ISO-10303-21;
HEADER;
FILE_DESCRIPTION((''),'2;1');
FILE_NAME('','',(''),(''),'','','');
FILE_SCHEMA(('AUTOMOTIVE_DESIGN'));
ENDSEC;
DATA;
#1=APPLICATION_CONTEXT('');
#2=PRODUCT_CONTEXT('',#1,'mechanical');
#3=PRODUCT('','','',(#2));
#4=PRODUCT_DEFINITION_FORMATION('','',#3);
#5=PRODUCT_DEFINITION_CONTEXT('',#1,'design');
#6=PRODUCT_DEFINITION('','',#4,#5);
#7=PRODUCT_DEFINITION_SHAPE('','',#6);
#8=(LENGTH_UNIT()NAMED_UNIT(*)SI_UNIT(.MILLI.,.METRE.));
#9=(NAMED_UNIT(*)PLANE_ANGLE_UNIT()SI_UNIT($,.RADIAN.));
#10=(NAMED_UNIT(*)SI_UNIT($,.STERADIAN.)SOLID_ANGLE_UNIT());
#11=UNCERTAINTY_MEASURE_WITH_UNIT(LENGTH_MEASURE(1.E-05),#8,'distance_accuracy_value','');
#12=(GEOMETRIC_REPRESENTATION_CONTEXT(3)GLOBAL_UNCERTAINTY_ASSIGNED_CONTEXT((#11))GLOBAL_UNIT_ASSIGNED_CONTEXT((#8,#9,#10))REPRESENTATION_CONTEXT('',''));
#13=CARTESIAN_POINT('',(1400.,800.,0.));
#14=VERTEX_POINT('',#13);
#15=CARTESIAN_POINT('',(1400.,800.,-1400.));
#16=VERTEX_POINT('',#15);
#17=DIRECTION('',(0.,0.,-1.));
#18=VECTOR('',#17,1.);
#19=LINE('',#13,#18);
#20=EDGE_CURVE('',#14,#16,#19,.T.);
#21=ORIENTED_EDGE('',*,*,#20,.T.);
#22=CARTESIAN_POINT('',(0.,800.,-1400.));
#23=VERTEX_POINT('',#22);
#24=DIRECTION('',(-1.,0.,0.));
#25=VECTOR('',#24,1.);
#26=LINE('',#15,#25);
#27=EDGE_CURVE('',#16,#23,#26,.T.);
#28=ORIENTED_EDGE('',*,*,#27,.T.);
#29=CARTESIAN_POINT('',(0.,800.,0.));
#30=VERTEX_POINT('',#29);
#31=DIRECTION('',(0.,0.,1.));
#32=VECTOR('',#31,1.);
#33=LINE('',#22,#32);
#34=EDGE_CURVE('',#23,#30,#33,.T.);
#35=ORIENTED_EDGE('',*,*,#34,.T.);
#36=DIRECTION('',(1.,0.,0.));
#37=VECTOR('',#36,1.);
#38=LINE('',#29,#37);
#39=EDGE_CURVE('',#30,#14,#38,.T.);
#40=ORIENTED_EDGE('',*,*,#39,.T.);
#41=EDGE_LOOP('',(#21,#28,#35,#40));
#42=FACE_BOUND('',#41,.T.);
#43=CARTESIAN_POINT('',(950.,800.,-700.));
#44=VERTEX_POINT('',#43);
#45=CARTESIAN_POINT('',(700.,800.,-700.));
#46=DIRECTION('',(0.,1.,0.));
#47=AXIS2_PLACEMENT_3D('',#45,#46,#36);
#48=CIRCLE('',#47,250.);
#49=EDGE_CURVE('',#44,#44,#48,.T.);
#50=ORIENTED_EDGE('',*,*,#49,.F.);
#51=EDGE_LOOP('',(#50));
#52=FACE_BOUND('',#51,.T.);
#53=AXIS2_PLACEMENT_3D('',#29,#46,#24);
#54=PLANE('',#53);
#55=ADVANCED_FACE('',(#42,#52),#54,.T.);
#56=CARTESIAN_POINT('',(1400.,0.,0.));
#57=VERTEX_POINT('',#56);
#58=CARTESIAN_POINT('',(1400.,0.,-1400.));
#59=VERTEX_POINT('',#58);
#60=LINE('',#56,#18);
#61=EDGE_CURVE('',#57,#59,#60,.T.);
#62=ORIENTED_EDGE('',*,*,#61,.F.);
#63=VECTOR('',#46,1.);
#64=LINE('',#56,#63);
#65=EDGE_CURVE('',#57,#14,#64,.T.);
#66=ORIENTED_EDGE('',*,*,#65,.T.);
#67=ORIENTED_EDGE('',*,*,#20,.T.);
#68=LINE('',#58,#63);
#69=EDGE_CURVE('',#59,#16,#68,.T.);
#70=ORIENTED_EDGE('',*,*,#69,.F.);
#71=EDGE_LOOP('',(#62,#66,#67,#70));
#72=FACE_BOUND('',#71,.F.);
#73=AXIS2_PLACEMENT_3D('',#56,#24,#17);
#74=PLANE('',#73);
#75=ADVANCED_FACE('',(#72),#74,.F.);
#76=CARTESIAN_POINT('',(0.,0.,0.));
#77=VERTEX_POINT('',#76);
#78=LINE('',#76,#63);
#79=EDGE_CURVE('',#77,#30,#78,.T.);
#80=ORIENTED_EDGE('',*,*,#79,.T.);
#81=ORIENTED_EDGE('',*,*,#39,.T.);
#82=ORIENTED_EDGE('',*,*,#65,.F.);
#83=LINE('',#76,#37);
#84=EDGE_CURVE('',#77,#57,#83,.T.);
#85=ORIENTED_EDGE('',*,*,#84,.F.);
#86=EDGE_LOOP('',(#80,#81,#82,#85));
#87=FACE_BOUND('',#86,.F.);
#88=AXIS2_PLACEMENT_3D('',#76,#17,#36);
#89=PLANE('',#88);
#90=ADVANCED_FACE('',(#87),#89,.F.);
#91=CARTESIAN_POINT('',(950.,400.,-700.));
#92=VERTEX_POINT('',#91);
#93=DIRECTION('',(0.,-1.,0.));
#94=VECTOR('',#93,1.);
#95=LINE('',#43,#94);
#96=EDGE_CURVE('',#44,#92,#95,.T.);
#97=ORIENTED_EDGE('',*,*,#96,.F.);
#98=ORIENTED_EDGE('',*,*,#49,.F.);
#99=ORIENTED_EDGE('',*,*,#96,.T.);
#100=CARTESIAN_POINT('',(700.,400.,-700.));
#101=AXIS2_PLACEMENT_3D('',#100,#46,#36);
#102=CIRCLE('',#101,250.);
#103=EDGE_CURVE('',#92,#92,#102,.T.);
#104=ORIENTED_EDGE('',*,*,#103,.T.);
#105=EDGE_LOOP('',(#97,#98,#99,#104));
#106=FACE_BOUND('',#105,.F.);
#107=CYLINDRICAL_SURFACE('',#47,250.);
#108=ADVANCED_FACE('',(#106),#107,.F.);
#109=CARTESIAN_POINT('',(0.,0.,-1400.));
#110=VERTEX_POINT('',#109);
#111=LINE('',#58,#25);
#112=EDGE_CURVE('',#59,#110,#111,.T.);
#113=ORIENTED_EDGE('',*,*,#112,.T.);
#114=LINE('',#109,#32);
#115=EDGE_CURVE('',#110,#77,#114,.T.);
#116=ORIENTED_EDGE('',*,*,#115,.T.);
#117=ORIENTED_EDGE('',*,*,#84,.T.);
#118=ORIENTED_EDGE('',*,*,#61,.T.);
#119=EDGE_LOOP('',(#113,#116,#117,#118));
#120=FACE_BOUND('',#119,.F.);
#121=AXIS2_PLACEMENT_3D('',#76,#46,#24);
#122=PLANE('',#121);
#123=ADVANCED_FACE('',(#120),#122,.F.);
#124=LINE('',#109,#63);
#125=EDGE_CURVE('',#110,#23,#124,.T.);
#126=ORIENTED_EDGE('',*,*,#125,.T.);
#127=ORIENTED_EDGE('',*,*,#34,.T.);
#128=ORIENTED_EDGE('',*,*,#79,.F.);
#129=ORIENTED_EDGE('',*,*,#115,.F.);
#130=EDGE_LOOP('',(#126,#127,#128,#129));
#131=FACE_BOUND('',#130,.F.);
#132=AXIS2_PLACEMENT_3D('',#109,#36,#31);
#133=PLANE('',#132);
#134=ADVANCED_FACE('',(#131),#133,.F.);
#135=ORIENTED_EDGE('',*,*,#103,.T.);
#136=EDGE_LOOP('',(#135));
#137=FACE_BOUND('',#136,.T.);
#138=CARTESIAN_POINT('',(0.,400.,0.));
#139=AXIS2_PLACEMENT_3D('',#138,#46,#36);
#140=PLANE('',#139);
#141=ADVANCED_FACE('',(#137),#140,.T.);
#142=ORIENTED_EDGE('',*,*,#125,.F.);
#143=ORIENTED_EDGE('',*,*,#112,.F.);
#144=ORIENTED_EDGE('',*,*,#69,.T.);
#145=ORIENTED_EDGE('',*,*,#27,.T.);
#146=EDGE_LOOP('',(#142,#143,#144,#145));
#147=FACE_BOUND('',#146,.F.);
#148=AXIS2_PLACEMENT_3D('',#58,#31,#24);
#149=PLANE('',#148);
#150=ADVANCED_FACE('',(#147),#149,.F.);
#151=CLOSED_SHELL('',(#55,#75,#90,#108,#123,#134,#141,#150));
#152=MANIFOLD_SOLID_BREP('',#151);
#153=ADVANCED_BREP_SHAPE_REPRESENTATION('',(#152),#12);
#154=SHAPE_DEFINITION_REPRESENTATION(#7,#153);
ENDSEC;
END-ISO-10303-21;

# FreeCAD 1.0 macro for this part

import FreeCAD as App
import Part
import Sketcher
Q = App.Units.Quantity

doc = App.newDocument("Part")
body = doc.addObject("PartDesign::Body", "Body")

sketch1 = body.newObject("Sketcher::SketchObject", "Sketch")
sketch1.AttachmentSupport = (doc.getObject("XZ_Plane"), [""])
sketch1.MapMode = "FlatFace"
sketch1.addGeometry([
    Part.LineSegment(App.Vector(0, -1400, 0), App.Vector(0, 0, 0)),
    Part.LineSegment(App.Vector(0, 0, 0), App.Vector(1400, 0, 0)),
    Part.LineSegment(App.Vector(1400, 0, 0), App.Vector(1400, -1400, 0)),
    Part.LineSegment(App.Vector(1400, -1400, 0), App.Vector(0, -1400, 0)),
], False)
sketch1.addConstraint([
    Sketcher.Constraint("Coincident", 0, 2, 1, 1),
    Sketcher.Constraint("Coincident", 1, 2, 2, 1),
    Sketcher.Constraint("Coincident", 2, 2, 3, 1),
    Sketcher.Constraint("Coincident", 3, 2, 0, 1),
    Sketcher.Constraint("Vertical", 0),
    Sketcher.Constraint("Horizontal", 1),
    Sketcher.Constraint("Vertical", 2),
    Sketcher.Constraint("Horizontal", 3),
    Sketcher.Constraint("Coincident", 0, 2, -1, 1),
    Sketcher.Constraint("Equal", 3, 0),
    Sketcher.Constraint("DistanceX", 1, 1, 1, 2, Q("1400 mm")),
])
pad1 = body.newObject("PartDesign::Pad", "Pad")
pad1.Profile = sketch1
pad1.Length = 800
pad1.Reversed = True

sketch2 = body.newObject("Sketcher::SketchObject", "Sketch001")
sketch2.AttachmentSupport = (doc.getObject("XZ_Plane"), [""])
sketch2.MapMode = "FlatFace"
sketch2.AttachmentOffset = App.Placement(App.Vector(0, 0, -800), App.Rotation())
sketch2.addGeometry(Part.Circle(App.Vector(700, -700, 0), App.Vector(0, 0, 1), 250), False)
sketch2.addConstraint([
    Sketcher.Constraint("Diameter", 0, Q("500 mm")),
    Sketcher.Constraint("DistanceX", -1, 1, 0, 3, Q("700 mm")),
    Sketcher.Constraint("DistanceY", 0, 3, -1, 1, Q("700 mm")),
])
pocket1 = body.newObject("PartDesign::Pocket", "Pocket")
pocket1.Profile = sketch2
pocket1.Length = 400
pocket1.Reversed = True

doc.recompute()
